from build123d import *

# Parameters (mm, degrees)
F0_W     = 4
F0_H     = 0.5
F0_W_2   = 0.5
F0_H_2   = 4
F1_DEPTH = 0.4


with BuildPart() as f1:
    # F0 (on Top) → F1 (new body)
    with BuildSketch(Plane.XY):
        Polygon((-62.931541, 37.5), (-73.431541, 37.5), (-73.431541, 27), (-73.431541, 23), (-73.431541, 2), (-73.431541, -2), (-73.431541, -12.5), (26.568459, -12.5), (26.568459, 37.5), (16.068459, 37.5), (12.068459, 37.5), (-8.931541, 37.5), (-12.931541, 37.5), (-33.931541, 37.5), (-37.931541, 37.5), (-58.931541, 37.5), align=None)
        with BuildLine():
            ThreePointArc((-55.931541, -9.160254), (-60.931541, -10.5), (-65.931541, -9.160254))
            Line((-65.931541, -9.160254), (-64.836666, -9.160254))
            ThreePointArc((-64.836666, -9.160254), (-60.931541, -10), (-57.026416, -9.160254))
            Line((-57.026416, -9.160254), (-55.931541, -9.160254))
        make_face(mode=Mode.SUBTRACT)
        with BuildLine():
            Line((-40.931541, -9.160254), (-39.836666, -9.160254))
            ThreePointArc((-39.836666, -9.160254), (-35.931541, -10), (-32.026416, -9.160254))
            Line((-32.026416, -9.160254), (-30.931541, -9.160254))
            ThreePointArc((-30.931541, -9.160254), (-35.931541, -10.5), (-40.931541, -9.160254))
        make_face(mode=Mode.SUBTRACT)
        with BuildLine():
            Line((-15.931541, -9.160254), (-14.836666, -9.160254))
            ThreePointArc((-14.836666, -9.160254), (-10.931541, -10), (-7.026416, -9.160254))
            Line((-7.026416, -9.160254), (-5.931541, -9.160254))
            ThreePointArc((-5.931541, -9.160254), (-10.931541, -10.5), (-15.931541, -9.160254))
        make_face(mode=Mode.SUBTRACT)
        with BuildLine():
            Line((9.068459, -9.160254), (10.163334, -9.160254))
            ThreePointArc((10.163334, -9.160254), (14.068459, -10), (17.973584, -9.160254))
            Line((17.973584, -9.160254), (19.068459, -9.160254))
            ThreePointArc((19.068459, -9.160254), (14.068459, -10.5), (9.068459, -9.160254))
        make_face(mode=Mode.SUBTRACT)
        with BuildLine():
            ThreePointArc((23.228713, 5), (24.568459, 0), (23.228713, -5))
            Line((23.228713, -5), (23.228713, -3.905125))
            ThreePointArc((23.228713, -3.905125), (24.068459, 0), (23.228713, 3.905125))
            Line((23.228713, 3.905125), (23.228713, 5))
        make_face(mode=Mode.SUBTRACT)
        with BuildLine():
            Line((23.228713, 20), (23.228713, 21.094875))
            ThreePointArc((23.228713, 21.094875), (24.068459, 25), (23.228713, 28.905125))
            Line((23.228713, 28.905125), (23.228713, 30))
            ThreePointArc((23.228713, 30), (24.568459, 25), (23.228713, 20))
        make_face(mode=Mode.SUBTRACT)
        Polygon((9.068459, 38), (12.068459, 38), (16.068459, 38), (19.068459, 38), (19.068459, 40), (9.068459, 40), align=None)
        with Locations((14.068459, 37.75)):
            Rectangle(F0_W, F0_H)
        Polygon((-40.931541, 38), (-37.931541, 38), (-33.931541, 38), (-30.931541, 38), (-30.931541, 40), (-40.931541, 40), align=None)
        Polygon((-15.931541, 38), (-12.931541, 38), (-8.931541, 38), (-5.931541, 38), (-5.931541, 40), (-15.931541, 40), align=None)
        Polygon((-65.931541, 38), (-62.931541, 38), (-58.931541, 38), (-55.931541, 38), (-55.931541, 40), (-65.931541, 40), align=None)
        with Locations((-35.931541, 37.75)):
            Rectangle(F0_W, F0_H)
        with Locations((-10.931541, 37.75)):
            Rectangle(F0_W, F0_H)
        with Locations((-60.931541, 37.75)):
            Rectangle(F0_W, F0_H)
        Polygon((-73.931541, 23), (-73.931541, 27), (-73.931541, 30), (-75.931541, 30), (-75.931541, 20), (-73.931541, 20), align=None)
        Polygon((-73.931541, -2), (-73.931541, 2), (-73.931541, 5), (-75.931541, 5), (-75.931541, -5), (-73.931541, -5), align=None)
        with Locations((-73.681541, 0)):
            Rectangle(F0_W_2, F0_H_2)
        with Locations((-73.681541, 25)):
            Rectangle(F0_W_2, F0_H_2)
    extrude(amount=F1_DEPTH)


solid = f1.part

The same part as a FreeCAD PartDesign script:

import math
import FreeCAD as App
import Part
import Sketcher

V = App.Vector
Q = App.Units.Quantity

doc = App.newDocument("Part")
body = doc.addObject("PartDesign::Body", "Body")

# Sketch on XY plane
sketch1 = body.newObject("Sketcher::SketchObject", "Sketch")
sketch1.AttachmentSupport = (doc.getObject("XY_Plane"), [""])
sketch1.MapMode = "FlatFace"
sketch1.addGeometry(Part.LineSegment(V(-73.4, 37.5, 0), V(-73.4, 27, 0)), False)
sketch1.addGeometry(Part.LineSegment(V(-73.4, 27, 0), V(-73.9, 27, 0)), False)
sketch1.addGeometry(Part.LineSegment(V(-73.9, 27, 0), V(-73.9, 30, 0)), False)
sketch1.addGeometry(Part.LineSegment(V(-73.9, 30, 0), V(-75.9, 30, 0)), False)
sketch1.addGeometry(Part.LineSegment(V(-75.9, 30, 0), V(-75.9, 20, 0)), False)
sketch1.addGeometry(Part.LineSegment(V(-75.9, 20, 0), V(-73.9, 20, 0)), False)
sketch1.addGeometry(Part.LineSegment(V(-73.9, 20, 0), V(-73.9, 23, 0)), False)
sketch1.addGeometry(Part.LineSegment(V(-73.9, 23, 0), V(-73.4, 23, 0)), False)
sketch1.addGeometry(Part.LineSegment(V(-73.4, 23, 0), V(-73.4, 2, 0)), False)
sketch1.addGeometry(Part.LineSegment(V(-73.4, 2, 0), V(-73.9, 2, 0)), False)
sketch1.addGeometry(Part.LineSegment(V(-73.9, 2, 0), V(-73.9, 5, 0)), False)
sketch1.addGeometry(Part.LineSegment(V(-73.9, 5, 0), V(-75.9, 5, 0)), False)
sketch1.addGeometry(Part.LineSegment(V(-75.9, 5, 0), V(-75.9, -5, 0)), False)
sketch1.addGeometry(Part.LineSegment(V(-75.9, -5, 0), V(-73.9, -5, 0)), False)
sketch1.addGeometry(Part.LineSegment(V(-73.9, -5, 0), V(-73.9, -2, 0)), False)
sketch1.addGeometry(Part.LineSegment(V(-73.9, -2, 0), V(-73.4, -2, 0)), False)
sketch1.addGeometry(Part.LineSegment(V(-73.4, -2, 0), V(-73.4, -12.5, 0)), False)
sketch1.addGeometry(Part.LineSegment(V(-73.4, -12.5, 0), V(26.6, -12.5, 0)), False)
sketch1.addGeometry(Part.LineSegment(V(26.6, -12.5, 0), V(26.6, 37.5, 0)), False)
sketch1.addGeometry(Part.LineSegment(V(26.6, 37.5, 0), V(16.1, 37.5, 0)), False)
sketch1.addGeometry(Part.LineSegment(V(16.1, 37.5, 0), V(16.1, 38, 0)), False)
sketch1.addGeometry(Part.LineSegment(V(16.1, 38, 0), V(19.1, 38, 0)), False)
sketch1.addGeometry(Part.LineSegment(V(19.1, 38, 0), V(19.1, 40, 0)), False)
sketch1.addGeometry(Part.LineSegment(V(19.1, 40, 0), V(9.1, 40, 0)), False)
sketch1.addGeometry(Part.LineSegment(V(9.1, 40, 0), V(9.1, 38, 0)), False)
sketch1.addGeometry(Part.LineSegment(V(9.1, 38, 0), V(12.1, 38, 0)), False)
sketch1.addGeometry(Part.LineSegment(V(12.1, 38, 0), V(12.1, 37.5, 0)), False)
sketch1.addGeometry(Part.LineSegment(V(12.1, 37.5, 0), V(-8.9, 37.5, 0)), False)
sketch1.addGeometry(Part.LineSegment(V(-8.9, 37.5, 0), V(-8.9, 38, 0)), False)
sketch1.addGeometry(Part.LineSegment(V(-8.9, 38, 0), V(-5.9, 38, 0)), False)
sketch1.addGeometry(Part.LineSegment(V(-5.9, 38, 0), V(-5.9, 40, 0)), False)
sketch1.addGeometry(Part.LineSegment(V(-5.9, 40, 0), V(-15.9, 40, 0)), False)
sketch1.addGeometry(Part.LineSegment(V(-15.9, 40, 0), V(-15.9, 38, 0)), False)
sketch1.addGeometry(Part.LineSegment(V(-15.9, 38, 0), V(-12.9, 38, 0)), False)
sketch1.addGeometry(Part.LineSegment(V(-12.9, 38, 0), V(-12.9, 37.5, 0)), False)
sketch1.addGeometry(Part.LineSegment(V(-12.9, 37.5, 0), V(-33.9, 37.5, 0)), False)
sketch1.addGeometry(Part.LineSegment(V(-33.9, 37.5, 0), V(-33.9, 38, 0)), False)
sketch1.addGeometry(Part.LineSegment(V(-33.9, 38, 0), V(-30.9, 38, 0)), False)
sketch1.addGeometry(Part.LineSegment(V(-30.9, 38, 0), V(-30.9, 40, 0)), False)
sketch1.addGeometry(Part.LineSegment(V(-30.9, 40, 0), V(-40.9, 40, 0)), False)
sketch1.addGeometry(Part.LineSegment(V(-40.9, 40, 0), V(-40.9, 38, 0)), False)
sketch1.addGeometry(Part.LineSegment(V(-40.9, 38, 0), V(-37.9, 38, 0)), False)
sketch1.addGeometry(Part.LineSegment(V(-37.9, 38, 0), V(-37.9, 37.5, 0)), False)
sketch1.addGeometry(Part.LineSegment(V(-37.9, 37.5, 0), V(-58.9, 37.5, 0)), False)
sketch1.addGeometry(Part.LineSegment(V(-58.9, 37.5, 0), V(-58.9, 38, 0)), False)
sketch1.addGeometry(Part.LineSegment(V(-58.9, 38, 0), V(-55.9, 38, 0)), False)
sketch1.addGeometry(Part.LineSegment(V(-55.9, 38, 0), V(-55.9, 40, 0)), False)
sketch1.addGeometry(Part.LineSegment(V(-55.9, 40, 0), V(-65.9, 40, 0)), False)
sketch1.addGeometry(Part.LineSegment(V(-65.9, 40, 0), V(-65.9, 38, 0)), False)
sketch1.addGeometry(Part.LineSegment(V(-65.9, 38, 0), V(-62.9, 38, 0)), False)
sketch1.addGeometry(Part.LineSegment(V(-62.9, 38, 0), V(-62.9, 37.5, 0)), False)
sketch1.addGeometry(Part.LineSegment(V(-62.9, 37.5, 0), V(-73.4, 37.5, 0)), False)
sketch1.addGeometry(Part.LineSegment(V(-57, -9.2, 0), V(-55.9, -9.2, 0)), False)
sketch1.addGeometry(Part.ArcOfCircle(Part.Circle(V(-60.9, -0.5, 0), V(0, 0, 1), 10), math.radians(-120), math.radians(-60)), False)
sketch1.addGeometry(Part.LineSegment(V(-65.9, -9.2, 0), V(-64.8, -9.2, 0)), False)
sketch1.addGeometry(Part.ArcOfCircle(Part.Circle(V(-60.9, -0.5, 0), V(0, 0, 1), 9.5), math.radians(-114), math.radians(-66)), False)
sketch1.addGeometry(Part.ArcOfCircle(Part.Circle(V(-35.9, -0.5, 0), V(0, 0, 1), 10), math.radians(-120), math.radians(-60)), False)
sketch1.addGeometry(Part.LineSegment(V(-40.9, -9.2, 0), V(-39.8, -9.2, 0)), False)
sketch1.addGeometry(Part.ArcOfCircle(Part.Circle(V(-35.9, -0.5, 0), V(0, 0, 1), 9.5), math.radians(-114), math.radians(-66)), False)
sketch1.addGeometry(Part.LineSegment(V(-32, -9.2, 0), V(-30.9, -9.2, 0)), False)
sketch1.addGeometry(Part.ArcOfCircle(Part.Circle(V(-10.9, -0.5, 0), V(0, 0, 1), 10), math.radians(-120), math.radians(-60)), False)
sketch1.addGeometry(Part.LineSegment(V(-15.9, -9.2, 0), V(-14.8, -9.2, 0)), False)
sketch1.addGeometry(Part.ArcOfCircle(Part.Circle(V(-10.9, -0.5, 0), V(0, 0, 1), 9.5), math.radians(-114), math.radians(-66)), False)
sketch1.addGeometry(Part.LineSegment(V(-7, -9.2, 0), V(-5.9, -9.2, 0)), False)
sketch1.addGeometry(Part.ArcOfCircle(Part.Circle(V(14.1, -0.5, 0), V(0, 0, 1), 10), math.radians(-120), math.radians(-60)), False)
sketch1.addGeometry(Part.LineSegment(V(9.1, -9.2, 0), V(10.2, -9.2, 0)), False)
sketch1.addGeometry(Part.ArcOfCircle(Part.Circle(V(14.1, -0.5, 0), V(0, 0, 1), 9.5), math.radians(-114), math.radians(-66)), False)
sketch1.addGeometry(Part.LineSegment(V(18, -9.2, 0), V(19.1, -9.2, 0)), False)
sketch1.addGeometry(Part.LineSegment(V(23.2, 3.9, 0), V(23.2, 5, 0)), False)
sketch1.addGeometry(Part.ArcOfCircle(Part.Circle(V(14.6, 0, 0), V(0, 0, 1), 10), math.radians(-30), math.radians(30)), False)
sketch1.addGeometry(Part.LineSegment(V(23.2, -5, 0), V(23.2, -3.9, 0)), False)
sketch1.addGeometry(Part.ArcOfCircle(Part.Circle(V(14.6, 0, 0), V(0, 0, 1), 9.5), math.radians(-24), math.radians(24)), False)
sketch1.addGeometry(Part.ArcOfCircle(Part.Circle(V(14.6, 25, 0), V(0, 0, 1), 10), math.radians(-30), math.radians(30)), False)
sketch1.addGeometry(Part.LineSegment(V(23.2, 20, 0), V(23.2, 21.1, 0)), False)
sketch1.addGeometry(Part.ArcOfCircle(Part.Circle(V(14.6, 25, 0), V(0, 0, 1), 9.5), math.radians(-24), math.radians(24)), False)
sketch1.addGeometry(Part.LineSegment(V(23.2, 28.9, 0), V(23.2, 30, 0)), False)
sketch1.addConstraint(Sketcher.Constraint("Coincident", 0, 2, 1, 1))
sketch1.addConstraint(Sketcher.Constraint("Coincident", 1, 2, 2, 1))
sketch1.addConstraint(Sketcher.Constraint("Coincident", 2, 2, 3, 1))
sketch1.addConstraint(Sketcher.Constraint("Coincident", 3, 2, 4, 1))
sketch1.addConstraint(Sketcher.Constraint("Coincident", 4, 2, 5, 1))
sketch1.addConstraint(Sketcher.Constraint("Coincident", 5, 2, 6, 1))
sketch1.addConstraint(Sketcher.Constraint("Coincident", 6, 2, 7, 1))
sketch1.addConstraint(Sketcher.Constraint("Coincident", 7, 2, 8, 1))
sketch1.addConstraint(Sketcher.Constraint("Coincident", 8, 2, 9, 1))
sketch1.addConstraint(Sketcher.Constraint("Coincident", 9, 2, 10, 1))
sketch1.addConstraint(Sketcher.Constraint("Coincident", 10, 2, 11, 1))
sketch1.addConstraint(Sketcher.Constraint("Coincident", 11, 2, 12, 1))
sketch1.addConstraint(Sketcher.Constraint("Coincident", 12, 2, 13, 1))
sketch1.addConstraint(Sketcher.Constraint("Coincident", 13, 2, 14, 1))
sketch1.addConstraint(Sketcher.Constraint("Coincident", 14, 2, 15, 1))
sketch1.addConstraint(Sketcher.Constraint("Coincident", 15, 2, 16, 1))
sketch1.addConstraint(Sketcher.Constraint("Coincident", 16, 2, 17, 1))
sketch1.addConstraint(Sketcher.Constraint("Coincident", 17, 2, 18, 1))
sketch1.addConstraint(Sketcher.Constraint("Coincident", 18, 2, 19, 1))
sketch1.addConstraint(Sketcher.Constraint("Coincident", 19, 2, 20, 1))
sketch1.addConstraint(Sketcher.Constraint("Coincident", 20, 2, 21, 1))
sketch1.addConstraint(Sketcher.Constraint("Coincident", 21, 2, 22, 1))
sketch1.addConstraint(Sketcher.Constraint("Coincident", 22, 2, 23, 1))
sketch1.addConstraint(Sketcher.Constraint("Coincident", 23, 2, 24, 1))
sketch1.addConstraint(Sketcher.Constraint("Coincident", 24, 2, 25, 1))
sketch1.addConstraint(Sketcher.Constraint("Coincident", 25, 2, 26, 1))
sketch1.addConstraint(Sketcher.Constraint("Coincident", 26, 2, 27, 1))
sketch1.addConstraint(Sketcher.Constraint("Coincident", 27, 2, 28, 1))
sketch1.addConstraint(Sketcher.Constraint("Coincident", 28, 2, 29, 1))
sketch1.addConstraint(Sketcher.Constraint("Coincident", 29, 2, 30, 1))
sketch1.addConstraint(Sketcher.Constraint("Coincident", 30, 2, 31, 1))
sketch1.addConstraint(Sketcher.Constraint("Coincident", 31, 2, 32, 1))
sketch1.addConstraint(Sketcher.Constraint("Coincident", 32, 2, 33, 1))
sketch1.addConstraint(Sketcher.Constraint("Coincident", 33, 2, 34, 1))
sketch1.addConstraint(Sketcher.Constraint("Coincident", 34, 2, 35, 1))
sketch1.addConstraint(Sketcher.Constraint("Coincident", 35, 2, 36, 1))
sketch1.addConstraint(Sketcher.Constraint("Coincident", 36, 2, 37, 1))
sketch1.addConstraint(Sketcher.Constraint("Coincident", 37, 2, 38, 1))
sketch1.addConstraint(Sketcher.Constraint("Coincident", 38, 2, 39, 1))
sketch1.addConstraint(Sketcher.Constraint("Coincident", 39, 2, 40, 1))
sketch1.addConstraint(Sketcher.Constraint("Coincident", 40, 2, 41, 1))
sketch1.addConstraint(Sketcher.Constraint("Coincident", 41, 2, 42, 1))
sketch1.addConstraint(Sketcher.Constraint("Coincident", 42, 2, 43, 1))
sketch1.addConstraint(Sketcher.Constraint("Coincident", 43, 2, 44, 1))
sketch1.addConstraint(Sketcher.Constraint("Coincident", 44, 2, 45, 1))
sketch1.addConstraint(Sketcher.Constraint("Coincident", 45, 2, 46, 1))
sketch1.addConstraint(Sketcher.Constraint("Coincident", 46, 2, 47, 1))
sketch1.addConstraint(Sketcher.Constraint("Coincident", 47, 2, 48, 1))
sketch1.addConstraint(Sketcher.Constraint("Coincident", 48, 2, 49, 1))
sketch1.addConstraint(Sketcher.Constraint("Coincident", 49, 2, 50, 1))
sketch1.addConstraint(Sketcher.Constraint("Coincident", 50, 2, 51, 1))
sketch1.addConstraint(Sketcher.Constraint("Coincident", 51, 2, 0, 1))
sketch1.addConstraint(Sketcher.Constraint("Coincident", 52, 2, 53, 2))
sketch1.addConstraint(Sketcher.Constraint("Coincident", 53, 1, 54, 1))
sketch1.addConstraint(Sketcher.Constraint("Coincident", 54, 2, 55, 1))
sketch1.addConstraint(Sketcher.Constraint("Coincident", 55, 2, 52, 1))
sketch1.addConstraint(Sketcher.Constraint("Coincident", 56, 1, 57, 1))
sketch1.addConstraint(Sketcher.Constraint("Coincident", 57, 2, 58, 1))
sketch1.addConstraint(Sketcher.Constraint("Coincident", 58, 2, 59, 1))
sketch1.addConstraint(Sketcher.Constraint("Coincident", 59, 2, 56, 2))
sketch1.addConstraint(Sketcher.Constraint("Coincident", 60, 1, 61, 1))
sketch1.addConstraint(Sketcher.Constraint("Coincident", 61, 2, 62, 1))
sketch1.addConstraint(Sketcher.Constraint("Coincident", 62, 2, 63, 1))
sketch1.addConstraint(Sketcher.Constraint("Coincident", 63, 2, 60, 2))
sketch1.addConstraint(Sketcher.Constraint("Coincident", 64, 1, 65, 1))
sketch1.addConstraint(Sketcher.Constraint("Coincident", 65, 2, 66, 1))
sketch1.addConstraint(Sketcher.Constraint("Coincident", 66, 2, 67, 1))
sketch1.addConstraint(Sketcher.Constraint("Coincident", 67, 2, 64, 2))
sketch1.addConstraint(Sketcher.Constraint("Coincident", 68, 2, 69, 2))
sketch1.addConstraint(Sketcher.Constraint("Coincident", 69, 1, 70, 1))
sketch1.addConstraint(Sketcher.Constraint("Coincident", 70, 2, 71, 1))
sketch1.addConstraint(Sketcher.Constraint("Coincident", 71, 2, 68, 1))
sketch1.addConstraint(Sketcher.Constraint("Coincident", 72, 1, 73, 1))
sketch1.addConstraint(Sketcher.Constraint("Coincident", 73, 2, 74, 1))
sketch1.addConstraint(Sketcher.Constraint("Coincident", 74, 2, 75, 1))
sketch1.addConstraint(Sketcher.Constraint("Coincident", 75, 2, 72, 2))
sketch1.addConstraint(Sketcher.Constraint("Vertical", 0))
sketch1.addConstraint(Sketcher.Constraint("Horizontal", 1))
sketch1.addConstraint(Sketcher.Constraint("Vertical", 2))
sketch1.addConstraint(Sketcher.Constraint("Horizontal", 3))
sketch1.addConstraint(Sketcher.Constraint("Vertical", 4))
sketch1.addConstraint(Sketcher.Constraint("Horizontal", 5))
sketch1.addConstraint(Sketcher.Constraint("Vertical", 6))
sketch1.addConstraint(Sketcher.Constraint("Horizontal", 7))
sketch1.addConstraint(Sketcher.Constraint("Vertical", 8))
sketch1.addConstraint(Sketcher.Constraint("Horizontal", 9))
sketch1.addConstraint(Sketcher.Constraint("Vertical", 10))
sketch1.addConstraint(Sketcher.Constraint("Horizontal", 11))
sketch1.addConstraint(Sketcher.Constraint("Vertical", 12))
sketch1.addConstraint(Sketcher.Constraint("Horizontal", 13))
sketch1.addConstraint(Sketcher.Constraint("Vertical", 14))
sketch1.addConstraint(Sketcher.Constraint("Horizontal", 15))
sketch1.addConstraint(Sketcher.Constraint("Vertical", 16))
sketch1.addConstraint(Sketcher.Constraint("Horizontal", 17))
sketch1.addConstraint(Sketcher.Constraint("Vertical", 18))
sketch1.addConstraint(Sketcher.Constraint("Horizontal", 19))
sketch1.addConstraint(Sketcher.Constraint("Vertical", 20))
sketch1.addConstraint(Sketcher.Constraint("Horizontal", 21))
sketch1.addConstraint(Sketcher.Constraint("Vertical", 22))
sketch1.addConstraint(Sketcher.Constraint("Horizontal", 23))
sketch1.addConstraint(Sketcher.Constraint("Vertical", 24))
sketch1.addConstraint(Sketcher.Constraint("Horizontal", 25))
sketch1.addConstraint(Sketcher.Constraint("Vertical", 26))
sketch1.addConstraint(Sketcher.Constraint("Horizontal", 27))
sketch1.addConstraint(Sketcher.Constraint("Vertical", 28))
sketch1.addConstraint(Sketcher.Constraint("Horizontal", 29))
sketch1.addConstraint(Sketcher.Constraint("Vertical", 30))
sketch1.addConstraint(Sketcher.Constraint("Horizontal", 31))
sketch1.addConstraint(Sketcher.Constraint("Vertical", 32))
sketch1.addConstraint(Sketcher.Constraint("Horizontal", 33))
sketch1.addConstraint(Sketcher.Constraint("Vertical", 34))
sketch1.addConstraint(Sketcher.Constraint("Horizontal", 35))
sketch1.addConstraint(Sketcher.Constraint("Vertical", 36))
sketch1.addConstraint(Sketcher.Constraint("Horizontal", 37))
sketch1.addConstraint(Sketcher.Constraint("Vertical", 38))
sketch1.addConstraint(Sketcher.Constraint("Horizontal", 39))
sketch1.addConstraint(Sketcher.Constraint("Vertical", 40))
sketch1.addConstraint(Sketcher.Constraint("Horizontal", 41))
sketch1.addConstraint(Sketcher.Constraint("Vertical", 42))
sketch1.addConstraint(Sketcher.Constraint("Horizontal", 43))
sketch1.addConstraint(Sketcher.Constraint("Vertical", 44))
sketch1.addConstraint(Sketcher.Constraint("Horizontal", 45))
sketch1.addConstraint(Sketcher.Constraint("Vertical", 46))
sketch1.addConstraint(Sketcher.Constraint("Horizontal", 47))
sketch1.addConstraint(Sketcher.Constraint("Vertical", 48))
sketch1.addConstraint(Sketcher.Constraint("Horizontal", 49))
sketch1.addConstraint(Sketcher.Constraint("Vertical", 50))
sketch1.addConstraint(Sketcher.Constraint("Horizontal", 51))
sketch1.addConstraint(Sketcher.Constraint("Horizontal", 52))
sketch1.addConstraint(Sketcher.Constraint("Horizontal", 54))
sketch1.addConstraint(Sketcher.Constraint("Horizontal", 57))
sketch1.addConstraint(Sketcher.Constraint("Horizontal", 59))
sketch1.addConstraint(Sketcher.Constraint("Horizontal", 61))
sketch1.addConstraint(Sketcher.Constraint("Horizontal", 63))
sketch1.addConstraint(Sketcher.Constraint("Horizontal", 65))
sketch1.addConstraint(Sketcher.Constraint("Horizontal", 67))
sketch1.addConstraint(Sketcher.Constraint("Vertical", 68))
sketch1.addConstraint(Sketcher.Constraint("Vertical", 70))
sketch1.addConstraint(Sketcher.Constraint("Vertical", 73))
sketch1.addConstraint(Sketcher.Constraint("Vertical", 75))
sketch1.addConstraint(Sketcher.Constraint("Coincident", 55, 3, 53, 3))
sketch1.addConstraint(Sketcher.Constraint("Coincident", 58, 3, 56, 3))
sketch1.addConstraint(Sketcher.Constraint("Coincident", 62, 3, 60, 3))
sketch1.addConstraint(Sketcher.Constraint("Coincident", 66, 3, 64, 3))
sketch1.addConstraint(Sketcher.Constraint("Coincident", 71, 3, 69, 3))
sketch1.addConstraint(Sketcher.Constraint("Coincident", 74, 3, 72, 3))
sketch1.addConstraint(Sketcher.Constraint("Equal", 53, 56))
sketch1.addConstraint(Sketcher.Constraint("Equal", 55, 58))
sketch1.addConstraint(Sketcher.Constraint("Equal", 56, 60))
sketch1.addConstraint(Sketcher.Constraint("Equal", 58, 62))
sketch1.addConstraint(Sketcher.Constraint("Equal", 60, 64))
sketch1.addConstraint(Sketcher.Constraint("Equal", 62, 66))
sketch1.addConstraint(Sketcher.Constraint("Equal", 64, 69))
sketch1.addConstraint(Sketcher.Constraint("Equal", 66, 71))
sketch1.addConstraint(Sketcher.Constraint("Equal", 69, 72))
sketch1.addConstraint(Sketcher.Constraint("Equal", 71, 74))
sketch1.addConstraint(Sketcher.Constraint("Symmetric", 10, 2, 13, 2, -1))
sketch1.addConstraint(Sketcher.Constraint("Symmetric", 8, 2, 15, 2, -1))
sketch1.addConstraint(Sketcher.Constraint("Symmetric", 68, 2, 69, 1, -1))
sketch1.addConstraint(Sketcher.Constraint("Horizontal", 55, 3, 56, 3))
sketch1.addConstraint(Sketcher.Constraint("Horizontal", 58, 3, 60, 3))
sketch1.addConstraint(Sketcher.Constraint("Horizontal", 62, 3, 64, 3))
sketch1.addConstraint(Sketcher.Constraint("Horizontal", 21, 2, 24, 2))
sketch1.addConstraint(Sketcher.Constraint("Horizontal", 19, 2, 26, 2))
sketch1.addConstraint(Sketcher.Constraint("Horizontal", 25, 2, 28, 2))
sketch1.addConstraint(Sketcher.Constraint("Horizontal", 23, 2, 30, 2))
sketch1.addConstraint(Sketcher.Constraint("Horizontal", 29, 2, 32, 2))
sketch1.addConstraint(Sketcher.Constraint("Horizontal", 27, 2, 34, 2))
sketch1.addConstraint(Sketcher.Constraint("Horizontal", 33, 2, 36, 2))
sketch1.addConstraint(Sketcher.Constraint("Horizontal", 31, 2, 38, 2))
sketch1.addConstraint(Sketcher.Constraint("Horizontal", 37, 2, 40, 2))
sketch1.addConstraint(Sketcher.Constraint("Horizontal", 35, 2, 42, 2))
sketch1.addConstraint(Sketcher.Constraint("Horizontal", 41, 2, 44, 2))
sketch1.addConstraint(Sketcher.Constraint("Horizontal", 39, 2, 46, 2))
sketch1.addConstraint(Sketcher.Constraint("Horizontal", 45, 2, 48, 2))
sketch1.addConstraint(Sketcher.Constraint("Horizontal", 43, 2, 50, 2))
sketch1.addConstraint(Sketcher.Constraint("Horizontal", 52, 2, 53, 1))
sketch1.addConstraint(Sketcher.Constraint("Horizontal", 55, 2, 56, 1))
sketch1.addConstraint(Sketcher.Constraint("Horizontal", 57, 2, 58, 2))
sketch1.addConstraint(Sketcher.Constraint("Horizontal", 59, 2, 60, 1))
sketch1.addConstraint(Sketcher.Constraint("Horizontal", 61, 2, 62, 2))
sketch1.addConstraint(Sketcher.Constraint("Horizontal", 63, 2, 64, 1))
sketch1.addConstraint(Sketcher.Constraint("Horizontal", 65, 2, 66, 2))
sketch1.addConstraint(Sketcher.Constraint("Horizontal", 11, 2, 68, 2))
sketch1.addConstraint(Sketcher.Constraint("Horizontal", 5, 2, 72, 1))
sketch1.addConstraint(Sketcher.Constraint("Horizontal", 3, 2, 75, 2))
sketch1.addConstraint(Sketcher.Constraint("Vertical", 71, 3, 72, 3))
sketch1.addConstraint(Sketcher.Constraint("Vertical", 2, 2, 5, 2))
sketch1.addConstraint(Sketcher.Constraint("Vertical", 0, 2, 7, 2))
sketch1.addConstraint(Sketcher.Constraint("Vertical", 6, 2, 9, 2))
sketch1.addConstraint(Sketcher.Constraint("Vertical", 4, 2, 11, 2))
sketch1.addConstraint(Sketcher.Constraint("Vertical", 46, 2, 52, 2))
sketch1.addConstraint(Sketcher.Constraint("Vertical", 48, 2, 53, 1))
sketch1.addConstraint(Sketcher.Constraint("Vertical", 40, 2, 56, 1))
sketch1.addConstraint(Sketcher.Constraint("Vertical", 38, 2, 59, 2))
sketch1.addConstraint(Sketcher.Constraint("Vertical", 32, 2, 60, 1))
sketch1.addConstraint(Sketcher.Constraint("Vertical", 30, 2, 63, 2))
sketch1.addConstraint(Sketcher.Constraint("Vertical", 24, 2, 64, 1))
sketch1.addConstraint(Sketcher.Constraint("Vertical", 22, 2, 67, 2))
sketch1.addConstraint(Sketcher.Constraint("Vertical", 71, 2, 72, 1))
sketch1.addConstraint(Sketcher.Constraint("Vertical", 73, 2, 74, 2))
sketch1.addConstraint(Sketcher.Constraint("Equal", 21, 25))
sketch1.addConstraint(Sketcher.Constraint("Equal", 25, 29))
sketch1.addConstraint(Sketcher.Constraint("Equal", 29, 33))
sketch1.addConstraint(Sketcher.Constraint("Equal", 27, 35))
sketch1.addConstraint(Sketcher.Constraint("Equal", 33, 37))
sketch1.addConstraint(Sketcher.Constraint("Equal", 37, 41))
sketch1.addConstraint(Sketcher.Constraint("Equal", 35, 43))
sketch1.addConstraint(Sketcher.Constraint("Equal", 41, 45))
sketch1.addConstraint(Sketcher.Constraint("Equal", 45, 49))
sketch1.addConstraint(Sketcher.Constraint("Equal", 19, 51))
sketch1.addConstraint(Sketcher.Constraint("Equal", 51, 0))
sketch1.addConstraint(Sketcher.Constraint("Equal", 49, 2))
sketch1.addConstraint(Sketcher.Constraint("Equal", 47, 4))
sketch1.addConstraint(Sketcher.Constraint("Equal", 2, 6))
sketch1.addConstraint(Sketcher.Constraint("Equal", 43, 8))
sketch1.addConstraint(Sketcher.Constraint("Equal", 6, 10))
sketch1.addConstraint(Sketcher.Constraint("Equal", 0, 16))
sketch1.addConstraint(Sketcher.Constraint("Equal", 15, 20))
sketch1.addConstraint(Sketcher.Constraint("Equal", 13, 22))
sketch1.addConstraint(Sketcher.Constraint("Radius", 53, Q("10 mm")))
sketch1.addConstraint(Sketcher.Constraint("Radius", 55, Q("9.5 mm")))
sketch1.addConstraint(Sketcher.Constraint("DistanceX", 3, 2, 3, 1, Q("2 mm")))
sketch1.addConstraint(Sketcher.Constraint("DistanceX", 17, 1, 17, 2, Q("100 mm")))
sketch1.addConstraint(Sketcher.Constraint("DistanceX", 21, 1, 21, 2, Q("3 mm")))
sketch1.addConstraint(Sketcher.Constraint("DistanceX", 23, 2, 23, 1, Q("10 mm")))
sketch1.addConstraint(Sketcher.Constraint("DistanceX", 27, 2, 27, 1, Q("21 mm")))
sketch1.addConstraint(Sketcher.Constraint("DistanceX", 1, 2, 1, 1, Q("0.5 mm")))
sketch1.addConstraint(Sketcher.Constraint("DistanceY", 53, 3, -1, 1, Q("0.5 mm")))
sketch1.addConstraint(Sketcher.Constraint("DistanceX", 53, 3, -1, 1, Q("60.931541 mm")))
sketch1.addConstraint(Sketcher.Constraint("DistanceX", -1, 1, 69, 3, Q("14.568459 mm")))
pad1 = body.newObject("PartDesign::Pad", "Pad")
pad1.Profile = sketch1
pad1.Length = 0.4

doc.recompute()
